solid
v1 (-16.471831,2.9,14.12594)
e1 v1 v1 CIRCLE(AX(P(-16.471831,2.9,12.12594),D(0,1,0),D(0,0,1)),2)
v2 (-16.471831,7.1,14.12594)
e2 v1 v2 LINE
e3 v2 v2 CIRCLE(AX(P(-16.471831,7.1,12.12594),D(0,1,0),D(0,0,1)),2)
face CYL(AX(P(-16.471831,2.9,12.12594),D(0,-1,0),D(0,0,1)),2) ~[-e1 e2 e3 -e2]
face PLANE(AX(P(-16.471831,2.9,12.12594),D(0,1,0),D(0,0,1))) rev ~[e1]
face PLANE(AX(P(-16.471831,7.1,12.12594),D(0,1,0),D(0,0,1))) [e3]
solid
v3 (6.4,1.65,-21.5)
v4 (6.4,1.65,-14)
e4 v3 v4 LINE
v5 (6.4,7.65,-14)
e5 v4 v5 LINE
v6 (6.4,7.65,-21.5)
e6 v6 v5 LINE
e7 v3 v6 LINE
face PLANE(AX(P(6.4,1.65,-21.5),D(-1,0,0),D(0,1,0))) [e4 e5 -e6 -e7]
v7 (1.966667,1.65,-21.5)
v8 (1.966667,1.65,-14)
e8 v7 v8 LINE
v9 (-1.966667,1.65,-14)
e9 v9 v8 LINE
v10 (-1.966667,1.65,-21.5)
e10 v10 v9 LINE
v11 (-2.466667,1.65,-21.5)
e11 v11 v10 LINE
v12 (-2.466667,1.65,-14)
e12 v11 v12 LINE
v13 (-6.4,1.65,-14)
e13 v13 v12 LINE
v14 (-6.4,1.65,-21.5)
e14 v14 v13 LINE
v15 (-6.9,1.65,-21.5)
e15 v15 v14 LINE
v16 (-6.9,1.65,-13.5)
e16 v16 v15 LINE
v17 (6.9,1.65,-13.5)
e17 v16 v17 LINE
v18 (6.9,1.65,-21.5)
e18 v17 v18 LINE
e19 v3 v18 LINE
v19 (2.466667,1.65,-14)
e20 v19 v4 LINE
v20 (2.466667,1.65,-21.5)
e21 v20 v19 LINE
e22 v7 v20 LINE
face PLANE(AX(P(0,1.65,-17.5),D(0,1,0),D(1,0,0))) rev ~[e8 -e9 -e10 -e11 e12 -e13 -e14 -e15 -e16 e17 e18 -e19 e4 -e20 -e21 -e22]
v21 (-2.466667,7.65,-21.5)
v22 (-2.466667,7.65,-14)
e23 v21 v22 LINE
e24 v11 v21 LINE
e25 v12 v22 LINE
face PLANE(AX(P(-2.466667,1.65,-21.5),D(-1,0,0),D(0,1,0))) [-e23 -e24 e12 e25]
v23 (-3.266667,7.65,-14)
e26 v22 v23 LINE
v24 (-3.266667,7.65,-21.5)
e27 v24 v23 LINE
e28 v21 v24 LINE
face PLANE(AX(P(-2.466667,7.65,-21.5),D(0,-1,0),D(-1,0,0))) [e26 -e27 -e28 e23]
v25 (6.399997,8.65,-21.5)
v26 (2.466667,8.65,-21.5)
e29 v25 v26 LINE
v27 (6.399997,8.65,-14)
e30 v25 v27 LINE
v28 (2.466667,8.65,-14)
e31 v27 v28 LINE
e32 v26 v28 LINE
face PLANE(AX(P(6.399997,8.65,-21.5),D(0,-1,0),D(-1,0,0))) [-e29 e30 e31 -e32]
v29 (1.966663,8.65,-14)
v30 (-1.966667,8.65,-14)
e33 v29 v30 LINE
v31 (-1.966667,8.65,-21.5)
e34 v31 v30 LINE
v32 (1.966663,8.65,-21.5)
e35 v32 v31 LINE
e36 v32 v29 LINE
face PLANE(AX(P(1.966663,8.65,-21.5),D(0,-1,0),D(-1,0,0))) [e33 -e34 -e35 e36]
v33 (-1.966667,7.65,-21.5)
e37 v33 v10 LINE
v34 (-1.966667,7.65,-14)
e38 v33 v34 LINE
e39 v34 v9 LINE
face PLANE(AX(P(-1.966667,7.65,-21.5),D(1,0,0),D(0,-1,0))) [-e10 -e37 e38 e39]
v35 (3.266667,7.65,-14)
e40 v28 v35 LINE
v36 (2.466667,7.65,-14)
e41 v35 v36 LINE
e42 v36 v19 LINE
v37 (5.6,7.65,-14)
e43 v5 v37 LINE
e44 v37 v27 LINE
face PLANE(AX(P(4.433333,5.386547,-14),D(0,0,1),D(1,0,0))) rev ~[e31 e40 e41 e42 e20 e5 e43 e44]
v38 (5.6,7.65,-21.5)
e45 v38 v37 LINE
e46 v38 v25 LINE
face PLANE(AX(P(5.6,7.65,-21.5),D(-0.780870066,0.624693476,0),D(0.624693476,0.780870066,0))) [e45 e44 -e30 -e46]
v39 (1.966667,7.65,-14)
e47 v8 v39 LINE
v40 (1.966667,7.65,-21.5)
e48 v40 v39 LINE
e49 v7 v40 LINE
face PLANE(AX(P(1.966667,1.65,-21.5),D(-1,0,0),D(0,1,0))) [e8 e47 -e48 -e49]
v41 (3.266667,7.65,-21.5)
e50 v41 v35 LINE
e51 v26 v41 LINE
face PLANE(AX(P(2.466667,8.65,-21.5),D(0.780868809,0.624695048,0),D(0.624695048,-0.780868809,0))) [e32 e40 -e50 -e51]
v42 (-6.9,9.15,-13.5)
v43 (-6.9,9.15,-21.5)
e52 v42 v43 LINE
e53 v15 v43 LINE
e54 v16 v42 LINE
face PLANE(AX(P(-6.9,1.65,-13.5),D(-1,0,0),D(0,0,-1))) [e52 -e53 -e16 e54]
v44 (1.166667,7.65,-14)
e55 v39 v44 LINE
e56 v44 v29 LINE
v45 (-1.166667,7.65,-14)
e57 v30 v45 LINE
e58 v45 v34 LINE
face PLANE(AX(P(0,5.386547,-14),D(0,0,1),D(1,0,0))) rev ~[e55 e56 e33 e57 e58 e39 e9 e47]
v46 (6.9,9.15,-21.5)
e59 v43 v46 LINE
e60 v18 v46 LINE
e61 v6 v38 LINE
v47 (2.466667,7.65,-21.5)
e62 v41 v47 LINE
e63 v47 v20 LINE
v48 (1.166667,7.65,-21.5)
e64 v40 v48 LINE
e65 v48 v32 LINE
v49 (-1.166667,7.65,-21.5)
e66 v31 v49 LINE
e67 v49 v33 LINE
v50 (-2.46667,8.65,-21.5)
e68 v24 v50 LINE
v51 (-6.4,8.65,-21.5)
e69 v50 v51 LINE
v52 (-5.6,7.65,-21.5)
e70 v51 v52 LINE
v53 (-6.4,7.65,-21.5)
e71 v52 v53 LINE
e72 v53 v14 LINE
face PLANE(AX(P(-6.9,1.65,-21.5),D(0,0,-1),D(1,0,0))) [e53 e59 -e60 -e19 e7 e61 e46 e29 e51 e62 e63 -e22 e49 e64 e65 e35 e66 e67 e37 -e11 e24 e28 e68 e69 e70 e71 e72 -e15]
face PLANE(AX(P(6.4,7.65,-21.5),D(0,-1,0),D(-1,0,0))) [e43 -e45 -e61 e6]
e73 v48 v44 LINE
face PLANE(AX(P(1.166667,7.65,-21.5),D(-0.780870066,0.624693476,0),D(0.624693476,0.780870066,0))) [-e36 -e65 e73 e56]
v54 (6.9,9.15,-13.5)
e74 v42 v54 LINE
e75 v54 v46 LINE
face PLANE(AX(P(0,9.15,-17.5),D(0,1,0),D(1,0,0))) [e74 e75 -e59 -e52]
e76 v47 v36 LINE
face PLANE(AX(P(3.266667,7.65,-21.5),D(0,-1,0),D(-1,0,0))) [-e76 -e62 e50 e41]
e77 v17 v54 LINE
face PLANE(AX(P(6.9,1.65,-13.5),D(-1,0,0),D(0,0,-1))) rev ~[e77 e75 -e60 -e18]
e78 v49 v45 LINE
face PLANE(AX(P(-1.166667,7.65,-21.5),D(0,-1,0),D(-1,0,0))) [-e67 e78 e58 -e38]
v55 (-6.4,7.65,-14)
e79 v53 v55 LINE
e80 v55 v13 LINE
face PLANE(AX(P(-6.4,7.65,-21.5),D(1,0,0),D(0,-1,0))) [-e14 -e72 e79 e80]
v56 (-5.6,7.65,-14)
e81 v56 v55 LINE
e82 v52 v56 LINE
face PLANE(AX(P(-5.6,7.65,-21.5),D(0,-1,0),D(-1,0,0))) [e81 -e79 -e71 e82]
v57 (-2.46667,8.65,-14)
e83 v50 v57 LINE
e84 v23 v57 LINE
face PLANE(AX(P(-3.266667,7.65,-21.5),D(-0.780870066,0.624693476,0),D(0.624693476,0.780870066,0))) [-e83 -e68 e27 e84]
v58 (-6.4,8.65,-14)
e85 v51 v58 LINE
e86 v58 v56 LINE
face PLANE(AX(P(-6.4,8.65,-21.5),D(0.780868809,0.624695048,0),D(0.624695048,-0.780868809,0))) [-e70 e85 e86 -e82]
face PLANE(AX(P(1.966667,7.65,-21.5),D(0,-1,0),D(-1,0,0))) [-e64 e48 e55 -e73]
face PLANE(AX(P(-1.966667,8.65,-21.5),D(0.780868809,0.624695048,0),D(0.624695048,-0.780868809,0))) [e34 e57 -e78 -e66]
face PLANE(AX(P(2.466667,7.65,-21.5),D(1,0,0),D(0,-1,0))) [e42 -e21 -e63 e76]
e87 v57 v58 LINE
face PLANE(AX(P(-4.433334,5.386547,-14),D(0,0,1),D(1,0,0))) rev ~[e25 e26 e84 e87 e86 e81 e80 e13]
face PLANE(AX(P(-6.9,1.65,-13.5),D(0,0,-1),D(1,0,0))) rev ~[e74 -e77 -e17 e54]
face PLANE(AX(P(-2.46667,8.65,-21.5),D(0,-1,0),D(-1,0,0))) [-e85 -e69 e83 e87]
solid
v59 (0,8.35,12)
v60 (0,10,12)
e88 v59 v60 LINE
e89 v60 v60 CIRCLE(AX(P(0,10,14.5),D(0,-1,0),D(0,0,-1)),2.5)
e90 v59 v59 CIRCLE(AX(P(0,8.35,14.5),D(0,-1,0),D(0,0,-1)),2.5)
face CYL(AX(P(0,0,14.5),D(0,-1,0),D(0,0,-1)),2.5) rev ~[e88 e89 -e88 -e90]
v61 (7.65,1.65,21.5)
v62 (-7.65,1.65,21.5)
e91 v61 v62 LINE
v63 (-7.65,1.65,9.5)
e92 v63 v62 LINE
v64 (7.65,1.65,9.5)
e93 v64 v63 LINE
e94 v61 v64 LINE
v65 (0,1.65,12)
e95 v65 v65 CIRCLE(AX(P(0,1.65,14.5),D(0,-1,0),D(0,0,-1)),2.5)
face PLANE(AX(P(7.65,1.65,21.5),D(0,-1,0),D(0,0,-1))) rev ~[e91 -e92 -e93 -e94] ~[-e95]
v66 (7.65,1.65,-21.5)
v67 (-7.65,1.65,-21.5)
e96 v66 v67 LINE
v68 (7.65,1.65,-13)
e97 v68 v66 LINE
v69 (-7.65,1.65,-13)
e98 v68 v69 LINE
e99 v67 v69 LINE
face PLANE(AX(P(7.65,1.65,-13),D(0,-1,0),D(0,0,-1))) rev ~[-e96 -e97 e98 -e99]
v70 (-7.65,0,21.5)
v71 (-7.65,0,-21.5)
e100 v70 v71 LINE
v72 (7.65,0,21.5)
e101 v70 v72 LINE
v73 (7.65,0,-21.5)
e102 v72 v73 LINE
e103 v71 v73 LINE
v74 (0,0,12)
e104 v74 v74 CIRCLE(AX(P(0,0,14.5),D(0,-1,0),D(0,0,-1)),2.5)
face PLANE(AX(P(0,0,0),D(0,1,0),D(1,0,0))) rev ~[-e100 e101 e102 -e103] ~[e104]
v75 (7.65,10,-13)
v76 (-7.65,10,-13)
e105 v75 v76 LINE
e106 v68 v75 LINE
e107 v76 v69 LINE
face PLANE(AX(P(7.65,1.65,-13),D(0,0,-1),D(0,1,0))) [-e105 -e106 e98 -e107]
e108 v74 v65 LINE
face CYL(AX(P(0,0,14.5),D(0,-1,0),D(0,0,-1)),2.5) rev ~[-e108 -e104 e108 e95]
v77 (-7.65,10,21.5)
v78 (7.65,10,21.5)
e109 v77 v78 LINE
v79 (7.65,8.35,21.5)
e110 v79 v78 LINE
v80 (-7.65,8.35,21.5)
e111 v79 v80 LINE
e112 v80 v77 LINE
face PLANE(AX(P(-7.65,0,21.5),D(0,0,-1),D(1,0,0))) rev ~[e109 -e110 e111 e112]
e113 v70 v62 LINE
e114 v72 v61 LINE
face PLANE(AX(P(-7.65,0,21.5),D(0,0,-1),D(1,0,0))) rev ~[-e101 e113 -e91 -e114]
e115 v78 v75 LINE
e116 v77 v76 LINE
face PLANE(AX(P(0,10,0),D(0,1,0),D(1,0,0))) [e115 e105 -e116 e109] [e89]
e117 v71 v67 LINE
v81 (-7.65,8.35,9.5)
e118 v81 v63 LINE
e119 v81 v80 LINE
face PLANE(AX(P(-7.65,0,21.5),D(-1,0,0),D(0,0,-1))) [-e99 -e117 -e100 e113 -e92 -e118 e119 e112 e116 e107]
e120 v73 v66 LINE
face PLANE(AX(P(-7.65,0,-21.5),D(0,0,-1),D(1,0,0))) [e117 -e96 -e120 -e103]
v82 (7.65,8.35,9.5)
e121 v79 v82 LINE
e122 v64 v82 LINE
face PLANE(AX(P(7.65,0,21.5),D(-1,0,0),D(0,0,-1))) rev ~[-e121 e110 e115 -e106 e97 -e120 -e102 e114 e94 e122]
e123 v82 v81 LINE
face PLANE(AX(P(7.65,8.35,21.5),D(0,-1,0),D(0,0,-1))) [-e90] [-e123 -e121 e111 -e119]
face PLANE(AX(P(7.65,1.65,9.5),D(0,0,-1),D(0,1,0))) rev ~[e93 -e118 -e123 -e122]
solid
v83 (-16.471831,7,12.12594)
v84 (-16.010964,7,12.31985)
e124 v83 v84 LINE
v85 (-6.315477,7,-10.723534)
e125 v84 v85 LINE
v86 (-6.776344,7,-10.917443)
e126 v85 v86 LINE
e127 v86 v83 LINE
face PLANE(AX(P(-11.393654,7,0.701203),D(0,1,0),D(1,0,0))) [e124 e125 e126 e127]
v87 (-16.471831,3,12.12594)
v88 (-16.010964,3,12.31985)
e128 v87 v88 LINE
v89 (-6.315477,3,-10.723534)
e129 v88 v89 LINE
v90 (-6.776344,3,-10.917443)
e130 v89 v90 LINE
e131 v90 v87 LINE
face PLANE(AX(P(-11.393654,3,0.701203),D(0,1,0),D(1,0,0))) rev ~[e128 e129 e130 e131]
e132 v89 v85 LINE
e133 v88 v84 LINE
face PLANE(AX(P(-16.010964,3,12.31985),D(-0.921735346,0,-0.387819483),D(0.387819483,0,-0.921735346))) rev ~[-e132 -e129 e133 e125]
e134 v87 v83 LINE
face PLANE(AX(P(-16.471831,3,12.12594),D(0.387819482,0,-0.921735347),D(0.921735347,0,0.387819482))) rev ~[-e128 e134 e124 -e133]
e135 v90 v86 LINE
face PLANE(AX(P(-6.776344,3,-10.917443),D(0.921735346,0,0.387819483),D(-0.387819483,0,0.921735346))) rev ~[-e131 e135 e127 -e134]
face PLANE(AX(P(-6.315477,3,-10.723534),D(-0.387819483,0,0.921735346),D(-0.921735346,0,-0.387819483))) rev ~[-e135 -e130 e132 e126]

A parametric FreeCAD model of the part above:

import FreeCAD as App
import Part
import Sketcher

doc = App.newDocument("Part")
body = doc.addObject("PartDesign::Body", "Body")

sketch1 = doc.addObject("Sketcher::SketchObject", "Sketch")
body.addObject(sketch1)
sketch1.AttachmentSupport = (doc.XZ_Plane, [""])
sketch1.MapMode = "FlatFace"
sketch1.addGeometry([
    Part.LineSegment(App.Vector(-7.65, -21.5, 0), App.Vector(-7.65, 21.5, 0)),
    Part.LineSegment(App.Vector(-7.65, 21.5, 0), App.Vector(7.65, 21.5, 0)),
    Part.LineSegment(App.Vector(7.65, 21.5, 0), App.Vector(7.65, -21.5, 0)),
    Part.LineSegment(App.Vector(7.65, -21.5, 0), App.Vector(-7.65, -21.5, 0)),
], False)
sketch1.addConstraint([
    Sketcher.Constraint("Coincident", 0, 2, 1, 1),
    Sketcher.Constraint("Coincident", 1, 2, 2, 1),
    Sketcher.Constraint("Coincident", 2, 2, 3, 1),
    Sketcher.Constraint("Coincident", 3, 2, 0, 1),
    Sketcher.Constraint("Vertical", 0),
    Sketcher.Constraint("Horizontal", 1),
    Sketcher.Constraint("Vertical", 2),
    Sketcher.Constraint("Horizontal", 3),
    Sketcher.Constraint("Symmetric", 0, 2, 2, 2, -1, 1),
    Sketcher.Constraint("DistanceY", 0, 1, 0, 2, 43.0),
    Sketcher.Constraint("DistanceX", 1, 1, 1, 2, 15.3),
])
pad1 = doc.addObject("PartDesign::Pad", "Pad")
body.addObject(pad1)
pad1.Profile = sketch1
pad1.Length = 10
pad1.Reversed = True

sketch2 = doc.addObject("Sketcher::SketchObject", "Sketch001")
body.addObject(sketch2)
sketch2.AttachmentSupport = (doc.YZ_Plane, [""])
sketch2.MapMode = "FlatFace"
sketch2.AttachmentOffset = App.Placement(App.Vector(0, 0, 7.65), App.Rotation())
sketch2.addGeometry([
    Part.LineSegment(App.Vector(8.35, 21.5, 0), App.Vector(1.65, 21.5, 0)),
    Part.LineSegment(App.Vector(1.65, 21.5, 0), App.Vector(1.65, 9.5, 0)),
    Part.LineSegment(App.Vector(1.65, 9.5, 0), App.Vector(8.35, 9.5, 0)),
    Part.LineSegment(App.Vector(8.35, 9.5, 0), App.Vector(8.35, 21.5, 0)),
    Part.LineSegment(App.Vector(10, -13, 0), App.Vector(1.65, -13, 0)),
    Part.LineSegment(App.Vector(1.65, -13, 0), App.Vector(1.65, -21.5, 0)),
    Part.LineSegment(App.Vector(1.65, -21.5, 0), App.Vector(10, -21.5, 0)),
    Part.LineSegment(App.Vector(10, -21.5, 0), App.Vector(10, -13, 0)),
], False)
sketch2.addConstraint([
    Sketcher.Constraint("Coincident", 0, 2, 1, 1),
    Sketcher.Constraint("Coincident", 1, 2, 2, 1),
    Sketcher.Constraint("Coincident", 2, 2, 3, 1),
    Sketcher.Constraint("Coincident", 3, 2, 0, 1),
    Sketcher.Constraint("Coincident", 4, 2, 5, 1),
    Sketcher.Constraint("Coincident", 5, 2, 6, 1),
    Sketcher.Constraint("Coincident", 6, 2, 7, 1),
    Sketcher.Constraint("Coincident", 7, 2, 4, 1),
    Sketcher.Constraint("Horizontal", 0),
    Sketcher.Constraint("Vertical", 1),
    Sketcher.Constraint("Horizontal", 2),
    Sketcher.Constraint("Vertical", 3),
    Sketcher.Constraint("Horizontal", 4),
    Sketcher.Constraint("Vertical", 5),
    Sketcher.Constraint("Horizontal", 6),
    Sketcher.Constraint("Vertical", 7),
    Sketcher.Constraint("Symmetric", 0, 2, 5, 2, -1),
    Sketcher.Constraint("DistanceY", 1, 2, 1, 1, 12.0),
    Sketcher.Constraint("DistanceX", 0, 2, 0, 1, 6.7),
    Sketcher.Constraint("DistanceY", 5, 2, 5, 1, 8.5),
    Sketcher.Constraint("DistanceY", 4, 2, -1, 1, 13.0),
    Sketcher.Constraint("DistanceX", -1, 1, 6, 2, 10.0),
    Sketcher.Constraint("DistanceX", 4, 2, 4, 1, 8.35),
])
pocket1 = doc.addObject("PartDesign::Pocket", "Pocket")
body.addObject(pocket1)
pocket1.Profile = sketch2
pocket1.Type = "ThroughAll"

sketch3 = doc.addObject("Sketcher::SketchObject", "Sketch002")
body.addObject(sketch3)
sketch3.AttachmentSupport = (doc.XZ_Plane, [""])
sketch3.MapMode = "FlatFace"
sketch3.addGeometry(Part.Circle(App.Vector(0, 14.5, 0), App.Vector(0, 0, 1), 2.5), False)
sketch3.addConstraint([
    Sketcher.Constraint("PointOnObject", 0, 3, -2),
    Sketcher.Constraint("Diameter", 0, 5.0),
    Sketcher.Constraint("DistanceY", -1, 1, 0, 3, 14.5),
])
pocket2 = doc.addObject("PartDesign::Pocket", "Pocket001")
body.addObject(pocket2)
pocket2.Profile = sketch3
pocket2.Type = "ThroughAll"
body2 = doc.addObject("PartDesign::Body", "Body001")

sketch4 = doc.addObject("Sketcher::SketchObject", "Sketch003")
body2.addObject(sketch4)
sketch4.AttachmentSupport = (doc.getObject("XZ_Plane001"), [""])
sketch4.MapMode = "FlatFace"
sketch4.AttachmentOffset = App.Placement(App.Vector(0, 0, -1.65), App.Rotation())
sketch4.addGeometry([
    Part.LineSegment(App.Vector(-6.9, -21.5, 0), App.Vector(-6.9, -13.5, 0)),
    Part.LineSegment(App.Vector(-6.9, -13.5, 0), App.Vector(6.9, -13.5, 0)),
    Part.LineSegment(App.Vector(6.9, -13.5, 0), App.Vector(6.9, -21.5, 0)),
    Part.LineSegment(App.Vector(6.9, -21.5, 0), App.Vector(-6.9, -21.5, 0)),
], False)
sketch4.addConstraint([
    Sketcher.Constraint("Coincident", 0, 2, 1, 1),
    Sketcher.Constraint("Coincident", 1, 2, 2, 1),
    Sketcher.Constraint("Coincident", 2, 2, 3, 1),
    Sketcher.Constraint("Coincident", 3, 2, 0, 1),
    Sketcher.Constraint("Vertical", 0),
    Sketcher.Constraint("Horizontal", 1),
    Sketcher.Constraint("Vertical", 2),
    Sketcher.Constraint("Horizontal", 3),
    Sketcher.Constraint("DistanceY", 0, 1, 0, 2, 8.0),
    Sketcher.Constraint("DistanceX", 1, 1, 1, 2, 13.8),
    Sketcher.Constraint("DistanceX", 0, 2, -1, 1, 6.9),
    Sketcher.Constraint("DistanceY", 0, 2, -1, 1, 13.5),
])
pad2 = doc.addObject("PartDesign::Pad", "Pad001")
body2.addObject(pad2)
pad2.Profile = sketch4
pad2.Length = 7.5
pad2.Reversed = True

sketch5 = doc.addObject("Sketcher::SketchObject", "Sketch004")
body2.addObject(sketch5)
sketch5.AttachmentSupport = (doc.getObject("XY_Plane001"), [""])
sketch5.MapMode = "FlatFace"
sketch5.AttachmentOffset = App.Placement(App.Vector(0, 0, -21.5), App.Rotation())
sketch5.addGeometry([
    Part.LineSegment(App.Vector(6.4, 7.65, 0), App.Vector(6.4, 1.65, 0)),
    Part.LineSegment(App.Vector(6.4, 1.65, 0), App.Vector(2.466667, 1.65, 0)),
    Part.LineSegment(App.Vector(2.466667, 1.65, 0), App.Vector(2.466667, 7.65, 0)),
    Part.LineSegment(App.Vector(2.466667, 7.65, 0), App.Vector(3.266667, 7.65, 0)),
    Part.LineSegment(App.Vector(3.266667, 7.65, 0), App.Vector(2.466667, 8.65, 0)),
    Part.LineSegment(App.Vector(2.466667, 8.65, 0), App.Vector(6.399997, 8.65, 0)),
    Part.LineSegment(App.Vector(6.399997, 8.65, 0), App.Vector(5.6, 7.65, 0)),
    Part.LineSegment(App.Vector(5.6, 7.65, 0), App.Vector(6.4, 7.65, 0)),
], False)
sketch5.addConstraint([
    Sketcher.Constraint("Coincident", 0, 2, 1, 1),
    Sketcher.Constraint("Coincident", 1, 2, 2, 1),
    Sketcher.Constraint("Coincident", 2, 2, 3, 1),
    Sketcher.Constraint("Coincident", 3, 2, 4, 1),
    Sketcher.Constraint("Coincident", 4, 2, 5, 1),
    Sketcher.Constraint("Coincident", 5, 2, 6, 1),
    Sketcher.Constraint("Coincident", 6, 2, 7, 1),
    Sketcher.Constraint("Coincident", 7, 2, 0, 1),
    Sketcher.Constraint("Vertical", 0),
    Sketcher.Constraint("Horizontal", 1),
    Sketcher.Constraint("Vertical", 2),
    Sketcher.Constraint("Horizontal", 3),
    Sketcher.Constraint("Horizontal", 5),
    Sketcher.Constraint("Horizontal", 7),
    Sketcher.Constraint("Horizontal", 3, 2, 6, 2),
    Sketcher.Constraint("Vertical", 2, 2, 4, 2),
    Sketcher.Constraint("Equal", 3, 7),
    Sketcher.Constraint("DistanceY", 0, 2, 0, 1, 6.0),
    Sketcher.Constraint("DistanceX", 3, 1, 3, 2, 0.8),
    Sketcher.Constraint("DistanceY", 2, 2, 4, 2, 1.0),
    Sketcher.Constraint("DistanceX", -1, 1, 0, 2, 6.4),
    Sketcher.Constraint("DistanceY", -1, 1, 0, 2, 1.65),
    Sketcher.Constraint("DistanceX", 5, 1, 5, 2, 3.93333),
    Sketcher.Constraint("DistanceX", 1, 2, 1, 1, 3.933333),
])
pocket3 = doc.addObject("PartDesign::Pocket", "Pocket002")
body2.addObject(pocket3)
pocket3.Profile = sketch5
pocket3.Length = 7.5
pocket3.Reversed = True
doc.recompute()

linearpattern = doc.addObject("PartDesign::LinearPattern", "LinearPattern")
body2.addObject(linearpattern)
linearpattern.Originals = [pocket3]
linearpattern.Direction = (doc.getObject("X_Axis001"), [""])
linearpattern.Mode = "offset"
linearpattern.Offset = 4.433333
linearpattern.Occurrences = 3
linearpattern.Reversed = True
body2.Tip = linearpattern
body3 = doc.addObject("PartDesign::Body", "Body002")

sketch6 = doc.addObject("Sketcher::SketchObject", "Sketch005")
body3.addObject(sketch6)
sketch6.AttachmentSupport = (doc.getObject("XZ_Plane002"), [""])
sketch6.MapMode = "FlatFace"
sketch6.AttachmentOffset = App.Placement(App.Vector(0, 0, -3), App.Rotation())
sketch6.addGeometry([
    Part.LineSegment(App.Vector(-6.776344, -10.917443, 0), App.Vector(-16.471831, 12.12594, 0)),
    Part.LineSegment(App.Vector(-16.471831, 12.12594, 0), App.Vector(-16.010964, 12.31985, 0)),
    Part.LineSegment(App.Vector(-16.010964, 12.31985, 0), App.Vector(-6.315477, -10.723534, 0)),
    Part.LineSegment(App.Vector(-6.315477, -10.723534, 0), App.Vector(-6.776344, -10.917443, 0)),
], False)
sketch6.addConstraint([
    Sketcher.Constraint("Coincident", 0, 2, 1, 1),
    Sketcher.Constraint("Coincident", 1, 2, 2, 1),
    Sketcher.Constraint("Coincident", 2, 2, 3, 1),
    Sketcher.Constraint("Coincident", 3, 2, 0, 1),
    Sketcher.Constraint("Perpendicular", 0, 1),
    Sketcher.Constraint("Perpendicular", 1, 2),
    Sketcher.Constraint("Perpendicular", 2, 3),
    Sketcher.Constraint("Distance", 0, 25.0),
    Sketcher.Constraint("Distance", 1, 0.5),
    Sketcher.Constraint("DistanceX", 0, 2, -1, 1, 16.471831),
    Sketcher.Constraint("DistanceY", -1, 1, 0, 2, 12.12594),
    Sketcher.Constraint("DistanceY", -1, 1, 1, 2, 12.31985),
])
pad3 = doc.addObject("PartDesign::Pad", "Pad002")
body3.addObject(pad3)
pad3.Profile = sketch6
pad3.Length = 4
pad3.Reversed = True
body4 = doc.addObject("PartDesign::Body", "Body003")

sketch7 = doc.addObject("Sketcher::SketchObject", "Sketch006")
body4.addObject(sketch7)
sketch7.AttachmentSupport = (doc.getObject("XZ_Plane003"), [""])
sketch7.MapMode = "FlatFace"
sketch7.AttachmentOffset = App.Placement(App.Vector(0, 0, -3), App.Rotation())
sketch7.addGeometry(Part.Circle(App.Vector(-16.471831, 12.12594, 0), App.Vector(0, 0, 1), 2), False)
sketch7.addConstraint([
    Sketcher.Constraint("Diameter", 0, 4.0),
    Sketcher.Constraint("DistanceX", 0, 3, -1, 1, 16.471831),
    Sketcher.Constraint("DistanceY", -1, 1, 0, 3, 12.12594),
])
pad4 = doc.addObject("PartDesign::Pad", "Pad003")
body4.addObject(pad4)
pad4.Profile = sketch7
pad4.Type = "TwoLengths"
pad4.Length = 4.1
pad4.Length2 = 0.1
pad4.Reversed = True

doc.recompute()
